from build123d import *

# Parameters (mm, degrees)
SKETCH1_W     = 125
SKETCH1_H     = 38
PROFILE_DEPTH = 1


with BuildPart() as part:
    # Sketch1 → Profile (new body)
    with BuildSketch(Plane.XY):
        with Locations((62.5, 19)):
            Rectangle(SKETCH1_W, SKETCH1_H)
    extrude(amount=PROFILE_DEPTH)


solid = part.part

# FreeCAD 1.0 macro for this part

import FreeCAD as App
import Part
import Sketcher

V = App.Vector
Q = App.Units.Quantity

doc = App.newDocument("Part")
body = doc.addObject("PartDesign::Body", "Body")

# Sketch on XY plane
sketch1 = body.newObject("Sketcher::SketchObject", "Sketch")
sketch1.AttachmentSupport = (doc.getObject("XY_Plane"), [""])
sketch1.MapMode = "FlatFace"
sketch1.addGeometry(Part.LineSegment(V(0, 38, 0), V(0, 0, 0)), False)
sketch1.addGeometry(Part.LineSegment(V(0, 0, 0), V(125, 0, 0)), False)
sketch1.addGeometry(Part.LineSegment(V(125, 0, 0), V(125, 38, 0)), False)
sketch1.addGeometry(Part.LineSegment(V(125, 38, 0), V(0, 38, 0)), False)
sketch1.addConstraint(Sketcher.Constraint("Coincident", 0, 2, 1, 1))
sketch1.addConstraint(Sketcher.Constraint("Coincident", 1, 2, 2, 1))
sketch1.addConstraint(Sketcher.Constraint("Coincident", 2, 2, 3, 1))
sketch1.addConstraint(Sketcher.Constraint("Coincident", 3, 2, 0, 1))
sketch1.addConstraint(Sketcher.Constraint("Vertical", 0))
sketch1.addConstraint(Sketcher.Constraint("Horizontal", 1))
sketch1.addConstraint(Sketcher.Constraint("Vertical", 2))
sketch1.addConstraint(Sketcher.Constraint("Horizontal", 3))
sketch1.addConstraint(Sketcher.Constraint("Coincident", 0, 2, -1, 1))
sketch1.addConstraint(Sketcher.Constraint("DistanceX", 1, 1, 1, 2, Q("125 mm")))
sketch1.addConstraint(Sketcher.Constraint("DistanceY", 0, 2, 0, 1, Q("38 mm")))
pad1 = body.newObject("PartDesign::Pad", "Pad")
pad1.Profile = sketch1
pad1.Length = 1

doc.recompute()
